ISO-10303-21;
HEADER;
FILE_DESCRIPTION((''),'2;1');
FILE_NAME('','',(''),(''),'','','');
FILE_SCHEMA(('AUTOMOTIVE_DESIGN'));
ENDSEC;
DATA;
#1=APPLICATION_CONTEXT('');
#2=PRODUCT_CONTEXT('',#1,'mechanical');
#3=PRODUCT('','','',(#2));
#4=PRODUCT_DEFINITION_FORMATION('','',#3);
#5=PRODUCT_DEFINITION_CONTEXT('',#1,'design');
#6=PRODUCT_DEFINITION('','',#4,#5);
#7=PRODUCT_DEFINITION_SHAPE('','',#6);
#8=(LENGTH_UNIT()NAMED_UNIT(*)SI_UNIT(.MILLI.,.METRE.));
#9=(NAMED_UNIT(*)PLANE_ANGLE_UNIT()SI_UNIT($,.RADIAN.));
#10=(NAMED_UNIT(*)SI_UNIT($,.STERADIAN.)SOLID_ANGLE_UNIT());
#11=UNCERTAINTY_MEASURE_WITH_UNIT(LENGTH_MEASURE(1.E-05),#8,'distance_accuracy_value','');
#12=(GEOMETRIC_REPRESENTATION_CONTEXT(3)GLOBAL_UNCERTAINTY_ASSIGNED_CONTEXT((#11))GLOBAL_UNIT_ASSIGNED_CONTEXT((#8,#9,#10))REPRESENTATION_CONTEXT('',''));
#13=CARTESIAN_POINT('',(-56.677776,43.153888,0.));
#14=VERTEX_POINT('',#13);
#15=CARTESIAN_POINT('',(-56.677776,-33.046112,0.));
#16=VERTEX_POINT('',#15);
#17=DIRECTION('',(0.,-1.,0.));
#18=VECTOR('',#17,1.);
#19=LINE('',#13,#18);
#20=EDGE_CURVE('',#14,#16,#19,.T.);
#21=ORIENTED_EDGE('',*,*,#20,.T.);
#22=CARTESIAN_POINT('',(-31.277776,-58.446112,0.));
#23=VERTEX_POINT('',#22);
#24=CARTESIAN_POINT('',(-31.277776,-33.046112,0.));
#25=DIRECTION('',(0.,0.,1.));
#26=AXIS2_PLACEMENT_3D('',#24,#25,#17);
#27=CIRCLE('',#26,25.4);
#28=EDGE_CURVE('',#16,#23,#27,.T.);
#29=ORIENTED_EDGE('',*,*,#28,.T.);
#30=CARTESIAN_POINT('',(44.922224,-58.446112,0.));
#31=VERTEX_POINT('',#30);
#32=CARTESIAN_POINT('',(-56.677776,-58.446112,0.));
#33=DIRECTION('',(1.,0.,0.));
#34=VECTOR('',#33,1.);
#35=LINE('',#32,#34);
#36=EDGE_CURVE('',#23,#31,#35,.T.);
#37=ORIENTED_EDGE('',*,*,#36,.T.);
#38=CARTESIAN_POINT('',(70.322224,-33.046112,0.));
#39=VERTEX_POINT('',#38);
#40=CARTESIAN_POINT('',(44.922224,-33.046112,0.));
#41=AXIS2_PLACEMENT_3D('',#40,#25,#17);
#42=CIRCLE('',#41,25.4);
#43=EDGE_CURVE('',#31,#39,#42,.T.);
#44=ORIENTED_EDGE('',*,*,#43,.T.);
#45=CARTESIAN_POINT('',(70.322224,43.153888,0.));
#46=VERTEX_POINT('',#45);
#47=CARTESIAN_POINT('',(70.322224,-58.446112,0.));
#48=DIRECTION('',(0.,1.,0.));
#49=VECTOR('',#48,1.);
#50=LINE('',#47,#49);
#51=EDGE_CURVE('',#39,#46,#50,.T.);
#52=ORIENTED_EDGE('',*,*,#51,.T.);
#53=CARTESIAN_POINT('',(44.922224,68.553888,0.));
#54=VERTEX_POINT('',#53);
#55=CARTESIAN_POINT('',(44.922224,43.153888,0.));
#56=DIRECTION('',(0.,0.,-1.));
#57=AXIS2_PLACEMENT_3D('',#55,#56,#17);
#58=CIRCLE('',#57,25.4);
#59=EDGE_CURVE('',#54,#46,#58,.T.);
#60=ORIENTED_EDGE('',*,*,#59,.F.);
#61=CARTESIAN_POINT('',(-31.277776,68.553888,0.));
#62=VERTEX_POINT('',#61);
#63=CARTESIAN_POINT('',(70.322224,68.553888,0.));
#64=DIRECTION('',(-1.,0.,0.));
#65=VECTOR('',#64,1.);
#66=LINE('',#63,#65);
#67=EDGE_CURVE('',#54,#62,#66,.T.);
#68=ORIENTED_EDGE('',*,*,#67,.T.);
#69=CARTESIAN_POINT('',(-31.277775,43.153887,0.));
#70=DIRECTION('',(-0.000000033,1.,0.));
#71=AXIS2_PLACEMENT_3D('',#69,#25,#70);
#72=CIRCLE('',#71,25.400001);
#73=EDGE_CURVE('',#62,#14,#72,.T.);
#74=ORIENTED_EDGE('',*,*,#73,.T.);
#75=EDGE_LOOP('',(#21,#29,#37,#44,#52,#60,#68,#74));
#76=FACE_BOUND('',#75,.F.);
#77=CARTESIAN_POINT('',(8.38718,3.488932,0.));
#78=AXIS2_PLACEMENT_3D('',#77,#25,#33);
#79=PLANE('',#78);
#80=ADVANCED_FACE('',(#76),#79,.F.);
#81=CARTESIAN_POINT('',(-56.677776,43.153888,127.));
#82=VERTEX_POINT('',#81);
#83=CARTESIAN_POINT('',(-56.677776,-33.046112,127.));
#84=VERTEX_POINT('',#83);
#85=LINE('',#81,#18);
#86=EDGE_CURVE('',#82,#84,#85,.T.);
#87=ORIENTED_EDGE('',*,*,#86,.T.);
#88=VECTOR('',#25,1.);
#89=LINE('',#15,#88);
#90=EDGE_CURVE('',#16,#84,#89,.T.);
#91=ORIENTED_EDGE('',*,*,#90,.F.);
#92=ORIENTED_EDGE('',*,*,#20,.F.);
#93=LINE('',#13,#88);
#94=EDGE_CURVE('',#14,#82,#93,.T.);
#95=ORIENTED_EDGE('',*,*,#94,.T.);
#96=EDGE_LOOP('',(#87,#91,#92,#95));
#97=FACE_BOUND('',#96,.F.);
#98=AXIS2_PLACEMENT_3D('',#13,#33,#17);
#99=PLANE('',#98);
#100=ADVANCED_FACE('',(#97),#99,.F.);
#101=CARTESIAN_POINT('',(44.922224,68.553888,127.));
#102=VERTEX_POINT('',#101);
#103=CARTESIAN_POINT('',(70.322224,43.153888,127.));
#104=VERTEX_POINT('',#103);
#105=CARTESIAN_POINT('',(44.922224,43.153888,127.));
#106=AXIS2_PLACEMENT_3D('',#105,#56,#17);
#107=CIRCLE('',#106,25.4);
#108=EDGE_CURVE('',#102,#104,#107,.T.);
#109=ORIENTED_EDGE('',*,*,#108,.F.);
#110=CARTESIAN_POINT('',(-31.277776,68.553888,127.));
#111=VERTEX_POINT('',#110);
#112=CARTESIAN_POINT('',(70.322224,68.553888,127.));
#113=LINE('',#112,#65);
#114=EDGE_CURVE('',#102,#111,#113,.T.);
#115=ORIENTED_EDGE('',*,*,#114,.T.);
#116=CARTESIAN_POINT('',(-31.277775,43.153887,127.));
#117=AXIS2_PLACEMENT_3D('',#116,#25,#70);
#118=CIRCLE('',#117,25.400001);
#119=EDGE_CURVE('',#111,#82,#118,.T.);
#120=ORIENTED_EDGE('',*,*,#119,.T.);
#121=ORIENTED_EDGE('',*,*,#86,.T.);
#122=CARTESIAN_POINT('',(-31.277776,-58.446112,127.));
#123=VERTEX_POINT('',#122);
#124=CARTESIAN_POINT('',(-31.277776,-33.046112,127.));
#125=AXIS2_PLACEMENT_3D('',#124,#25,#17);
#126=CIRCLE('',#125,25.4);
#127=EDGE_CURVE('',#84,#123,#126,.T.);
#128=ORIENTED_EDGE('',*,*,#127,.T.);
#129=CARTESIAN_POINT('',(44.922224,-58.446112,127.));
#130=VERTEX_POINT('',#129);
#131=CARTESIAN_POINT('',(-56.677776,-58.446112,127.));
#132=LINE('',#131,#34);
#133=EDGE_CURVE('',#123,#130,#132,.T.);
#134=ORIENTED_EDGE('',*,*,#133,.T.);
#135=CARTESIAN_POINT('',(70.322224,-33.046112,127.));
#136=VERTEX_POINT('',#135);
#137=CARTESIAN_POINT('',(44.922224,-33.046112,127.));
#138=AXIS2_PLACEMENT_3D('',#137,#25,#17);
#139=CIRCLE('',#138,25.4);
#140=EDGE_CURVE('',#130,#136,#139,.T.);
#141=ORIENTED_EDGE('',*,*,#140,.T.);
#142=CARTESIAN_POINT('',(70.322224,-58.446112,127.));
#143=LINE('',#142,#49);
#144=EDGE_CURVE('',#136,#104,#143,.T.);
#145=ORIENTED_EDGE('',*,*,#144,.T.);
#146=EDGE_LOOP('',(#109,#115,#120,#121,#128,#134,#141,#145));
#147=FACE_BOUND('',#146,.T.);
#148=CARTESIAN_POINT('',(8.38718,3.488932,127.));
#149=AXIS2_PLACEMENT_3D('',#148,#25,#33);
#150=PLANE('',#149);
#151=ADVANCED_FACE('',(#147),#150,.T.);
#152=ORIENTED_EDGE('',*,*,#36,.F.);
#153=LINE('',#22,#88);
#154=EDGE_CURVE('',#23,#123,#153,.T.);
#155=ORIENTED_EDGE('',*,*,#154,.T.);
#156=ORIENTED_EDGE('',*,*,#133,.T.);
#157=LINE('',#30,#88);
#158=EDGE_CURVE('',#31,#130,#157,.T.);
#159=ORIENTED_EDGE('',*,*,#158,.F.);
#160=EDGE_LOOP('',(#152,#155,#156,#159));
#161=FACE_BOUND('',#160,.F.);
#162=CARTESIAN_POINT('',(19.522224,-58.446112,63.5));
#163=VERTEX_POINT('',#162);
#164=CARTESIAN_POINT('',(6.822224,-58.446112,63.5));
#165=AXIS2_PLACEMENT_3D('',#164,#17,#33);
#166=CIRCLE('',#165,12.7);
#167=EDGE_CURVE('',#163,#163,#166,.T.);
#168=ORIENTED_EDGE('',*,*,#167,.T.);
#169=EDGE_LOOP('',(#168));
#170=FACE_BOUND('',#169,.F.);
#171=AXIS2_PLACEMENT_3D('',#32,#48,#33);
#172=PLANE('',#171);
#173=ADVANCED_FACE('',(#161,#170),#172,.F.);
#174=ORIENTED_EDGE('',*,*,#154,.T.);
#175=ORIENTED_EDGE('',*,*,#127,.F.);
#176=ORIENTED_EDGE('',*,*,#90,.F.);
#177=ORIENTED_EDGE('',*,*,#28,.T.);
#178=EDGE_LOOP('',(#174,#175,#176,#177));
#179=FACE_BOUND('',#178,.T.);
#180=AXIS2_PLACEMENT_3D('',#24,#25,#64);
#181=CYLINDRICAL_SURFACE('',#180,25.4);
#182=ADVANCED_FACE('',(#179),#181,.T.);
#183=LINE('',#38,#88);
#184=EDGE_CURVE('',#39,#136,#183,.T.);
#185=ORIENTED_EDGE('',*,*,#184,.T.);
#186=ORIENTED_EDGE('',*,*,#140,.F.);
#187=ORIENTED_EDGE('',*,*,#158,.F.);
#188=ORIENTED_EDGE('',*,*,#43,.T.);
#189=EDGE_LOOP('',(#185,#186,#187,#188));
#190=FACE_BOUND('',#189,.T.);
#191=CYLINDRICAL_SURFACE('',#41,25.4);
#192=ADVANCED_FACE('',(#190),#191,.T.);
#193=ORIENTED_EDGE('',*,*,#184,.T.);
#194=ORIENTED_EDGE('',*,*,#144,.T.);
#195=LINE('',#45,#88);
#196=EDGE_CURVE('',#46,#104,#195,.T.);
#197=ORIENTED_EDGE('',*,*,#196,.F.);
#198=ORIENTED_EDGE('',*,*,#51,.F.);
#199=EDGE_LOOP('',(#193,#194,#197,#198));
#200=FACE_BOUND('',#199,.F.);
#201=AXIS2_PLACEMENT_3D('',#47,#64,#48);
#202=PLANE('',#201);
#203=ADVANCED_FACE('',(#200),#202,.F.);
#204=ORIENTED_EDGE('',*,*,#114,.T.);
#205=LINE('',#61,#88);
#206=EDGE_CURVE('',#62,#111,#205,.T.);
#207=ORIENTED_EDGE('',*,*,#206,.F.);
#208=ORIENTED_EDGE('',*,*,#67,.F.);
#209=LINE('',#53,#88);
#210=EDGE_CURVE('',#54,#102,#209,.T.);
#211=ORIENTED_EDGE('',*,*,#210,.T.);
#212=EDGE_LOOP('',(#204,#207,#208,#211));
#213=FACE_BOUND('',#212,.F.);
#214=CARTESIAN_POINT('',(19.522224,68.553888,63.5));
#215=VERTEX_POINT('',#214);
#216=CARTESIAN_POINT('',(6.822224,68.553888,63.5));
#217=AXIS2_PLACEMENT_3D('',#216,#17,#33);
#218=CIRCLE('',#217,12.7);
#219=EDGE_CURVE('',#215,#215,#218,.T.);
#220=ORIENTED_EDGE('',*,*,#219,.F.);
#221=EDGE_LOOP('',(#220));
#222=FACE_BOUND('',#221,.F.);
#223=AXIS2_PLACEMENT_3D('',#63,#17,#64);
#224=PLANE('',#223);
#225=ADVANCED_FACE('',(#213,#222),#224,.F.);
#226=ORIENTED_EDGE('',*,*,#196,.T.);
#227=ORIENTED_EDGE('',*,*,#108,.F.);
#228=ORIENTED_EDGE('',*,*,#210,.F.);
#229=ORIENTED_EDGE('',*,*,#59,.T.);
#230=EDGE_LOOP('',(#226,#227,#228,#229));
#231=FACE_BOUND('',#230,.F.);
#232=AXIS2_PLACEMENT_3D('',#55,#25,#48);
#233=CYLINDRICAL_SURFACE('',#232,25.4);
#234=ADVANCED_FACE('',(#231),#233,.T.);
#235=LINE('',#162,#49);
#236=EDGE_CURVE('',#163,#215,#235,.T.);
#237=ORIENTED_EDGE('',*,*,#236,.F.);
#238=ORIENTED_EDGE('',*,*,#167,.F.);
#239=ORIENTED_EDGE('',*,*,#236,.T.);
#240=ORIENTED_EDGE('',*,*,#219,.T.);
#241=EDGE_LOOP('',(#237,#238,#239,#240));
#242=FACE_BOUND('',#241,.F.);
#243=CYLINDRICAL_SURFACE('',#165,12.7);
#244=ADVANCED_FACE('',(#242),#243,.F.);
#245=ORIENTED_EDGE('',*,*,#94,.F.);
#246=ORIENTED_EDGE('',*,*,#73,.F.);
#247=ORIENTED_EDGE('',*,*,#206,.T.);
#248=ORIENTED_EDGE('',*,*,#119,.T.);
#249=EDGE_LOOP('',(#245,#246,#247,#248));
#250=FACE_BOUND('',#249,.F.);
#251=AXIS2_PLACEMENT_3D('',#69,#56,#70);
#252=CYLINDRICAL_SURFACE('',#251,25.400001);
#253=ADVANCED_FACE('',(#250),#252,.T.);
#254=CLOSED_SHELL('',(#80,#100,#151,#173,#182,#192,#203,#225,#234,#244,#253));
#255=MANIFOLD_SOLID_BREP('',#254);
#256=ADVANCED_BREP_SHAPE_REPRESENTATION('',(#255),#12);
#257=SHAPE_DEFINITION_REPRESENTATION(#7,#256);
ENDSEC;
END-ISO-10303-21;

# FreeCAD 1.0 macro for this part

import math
import FreeCAD as App
import Part
import Sketcher
from FreeCAD import Vector
Q = App.Units.Quantity


def edges_at(feature, points):
    """Names of the edges that pass closest to the given points."""
    edges = feature.Shape.Edges
    near = lambda p: min(range(len(edges)), key=lambda i: edges[i].distToShape(Part.Vertex(*p))[0])
    return sorted({f"Edge{near(p) + 1}" for p in points})

doc = App.newDocument("Part")
body = doc.addObject("PartDesign::Body", "Body")

# Sketch on XY plane
sketch1 = body.newObject("Sketcher::SketchObject", "Sketch")
sketch1.AttachmentSupport = (doc.getObject("XY_Plane"), [""])
sketch1.MapMode = "FlatFace"
sketch1.addGeometry([
    Part.LineSegment(Vector(70, 69, 0), Vector(-31, 69, 0)),  # 0
    Part.ArcOfCircle(Part.Circle(Vector(-31, 43, 0), Vector(0, 0, 1), 25), math.radians(90), math.radians(180)),  # 1
    Part.LineSegment(Vector(-57, 43, 0), Vector(-57, -58, 0)),  # 2
    Part.LineSegment(Vector(-57, -58, 0), Vector(70, -58, 0)),  # 3
    Part.LineSegment(Vector(70, -58, 0), Vector(70, 69, 0)),  # 4
], False)
sketch1.addConstraint([
    Sketcher.Constraint("Tangent", 0, 2, 1, 1),
    Sketcher.Constraint("Tangent", 1, 2, 2, 1),
    Sketcher.Constraint("Coincident", 2, 2, 3, 1),
    Sketcher.Constraint("Coincident", 3, 2, 4, 1),
    Sketcher.Constraint("Coincident", 4, 2, 0, 1),
    Sketcher.Constraint("Horizontal", 0),
    Sketcher.Constraint("Vertical", 2),
    Sketcher.Constraint("Horizontal", 3),
    Sketcher.Constraint("Vertical", 4),
    Sketcher.Constraint("Equal", 0, 2),
    Sketcher.Constraint("Radius", 1, Q("1 in")),
    Sketcher.Constraint("DistanceX", 0, 2, 0, 1, Q("4 in")),
    Sketcher.Constraint("DistanceY", -1, 1, 0, 2, 68.553888),
    Sketcher.Constraint("DistanceX", 1, 3, -1, 1, 31.277775),
])
pad1 = body.newObject("PartDesign::Pad", "Pad")
pad1.Profile = sketch1
pad1.Length = Q("5 in")
doc.recompute()

fillet = body.newObject("PartDesign::Fillet", "Fillet")
fillet.Base = (pad1, edges_at(pad1, [(70.322, 68.554, 63.5), (70.322, -58.446, 63.5), (-56.678, -58.446, 63.5)]))
fillet.Radius = Q("1 in")

# Sketch on XZ plane
sketch2 = body.newObject("Sketcher::SketchObject", "Sketch001")
sketch2.AttachmentSupport = (doc.getObject("XZ_Plane"), [""])
sketch2.MapMode = "FlatFace"
sketch2.AttachmentOffset = App.Placement(Vector(0, 0, 58.446112), App.Rotation())
sketch2.addGeometry(Part.Circle(Vector(7, 64, 0), Vector(0, 0, 1), 13), False)
sketch2.addConstraint([
    Sketcher.Constraint("Diameter", 0, Q("1 in")),
    Sketcher.Constraint("DistanceY", -1, 1, 0, 3, Q("2.5 in")),
    Sketcher.Constraint("DistanceX", -1, 1, 0, 3, 6.822224),
])
pocket1 = body.newObject("PartDesign::Pocket", "Pocket")
pocket1.Profile = sketch2
pocket1.Type = "ThroughAll"

doc.recompute()
